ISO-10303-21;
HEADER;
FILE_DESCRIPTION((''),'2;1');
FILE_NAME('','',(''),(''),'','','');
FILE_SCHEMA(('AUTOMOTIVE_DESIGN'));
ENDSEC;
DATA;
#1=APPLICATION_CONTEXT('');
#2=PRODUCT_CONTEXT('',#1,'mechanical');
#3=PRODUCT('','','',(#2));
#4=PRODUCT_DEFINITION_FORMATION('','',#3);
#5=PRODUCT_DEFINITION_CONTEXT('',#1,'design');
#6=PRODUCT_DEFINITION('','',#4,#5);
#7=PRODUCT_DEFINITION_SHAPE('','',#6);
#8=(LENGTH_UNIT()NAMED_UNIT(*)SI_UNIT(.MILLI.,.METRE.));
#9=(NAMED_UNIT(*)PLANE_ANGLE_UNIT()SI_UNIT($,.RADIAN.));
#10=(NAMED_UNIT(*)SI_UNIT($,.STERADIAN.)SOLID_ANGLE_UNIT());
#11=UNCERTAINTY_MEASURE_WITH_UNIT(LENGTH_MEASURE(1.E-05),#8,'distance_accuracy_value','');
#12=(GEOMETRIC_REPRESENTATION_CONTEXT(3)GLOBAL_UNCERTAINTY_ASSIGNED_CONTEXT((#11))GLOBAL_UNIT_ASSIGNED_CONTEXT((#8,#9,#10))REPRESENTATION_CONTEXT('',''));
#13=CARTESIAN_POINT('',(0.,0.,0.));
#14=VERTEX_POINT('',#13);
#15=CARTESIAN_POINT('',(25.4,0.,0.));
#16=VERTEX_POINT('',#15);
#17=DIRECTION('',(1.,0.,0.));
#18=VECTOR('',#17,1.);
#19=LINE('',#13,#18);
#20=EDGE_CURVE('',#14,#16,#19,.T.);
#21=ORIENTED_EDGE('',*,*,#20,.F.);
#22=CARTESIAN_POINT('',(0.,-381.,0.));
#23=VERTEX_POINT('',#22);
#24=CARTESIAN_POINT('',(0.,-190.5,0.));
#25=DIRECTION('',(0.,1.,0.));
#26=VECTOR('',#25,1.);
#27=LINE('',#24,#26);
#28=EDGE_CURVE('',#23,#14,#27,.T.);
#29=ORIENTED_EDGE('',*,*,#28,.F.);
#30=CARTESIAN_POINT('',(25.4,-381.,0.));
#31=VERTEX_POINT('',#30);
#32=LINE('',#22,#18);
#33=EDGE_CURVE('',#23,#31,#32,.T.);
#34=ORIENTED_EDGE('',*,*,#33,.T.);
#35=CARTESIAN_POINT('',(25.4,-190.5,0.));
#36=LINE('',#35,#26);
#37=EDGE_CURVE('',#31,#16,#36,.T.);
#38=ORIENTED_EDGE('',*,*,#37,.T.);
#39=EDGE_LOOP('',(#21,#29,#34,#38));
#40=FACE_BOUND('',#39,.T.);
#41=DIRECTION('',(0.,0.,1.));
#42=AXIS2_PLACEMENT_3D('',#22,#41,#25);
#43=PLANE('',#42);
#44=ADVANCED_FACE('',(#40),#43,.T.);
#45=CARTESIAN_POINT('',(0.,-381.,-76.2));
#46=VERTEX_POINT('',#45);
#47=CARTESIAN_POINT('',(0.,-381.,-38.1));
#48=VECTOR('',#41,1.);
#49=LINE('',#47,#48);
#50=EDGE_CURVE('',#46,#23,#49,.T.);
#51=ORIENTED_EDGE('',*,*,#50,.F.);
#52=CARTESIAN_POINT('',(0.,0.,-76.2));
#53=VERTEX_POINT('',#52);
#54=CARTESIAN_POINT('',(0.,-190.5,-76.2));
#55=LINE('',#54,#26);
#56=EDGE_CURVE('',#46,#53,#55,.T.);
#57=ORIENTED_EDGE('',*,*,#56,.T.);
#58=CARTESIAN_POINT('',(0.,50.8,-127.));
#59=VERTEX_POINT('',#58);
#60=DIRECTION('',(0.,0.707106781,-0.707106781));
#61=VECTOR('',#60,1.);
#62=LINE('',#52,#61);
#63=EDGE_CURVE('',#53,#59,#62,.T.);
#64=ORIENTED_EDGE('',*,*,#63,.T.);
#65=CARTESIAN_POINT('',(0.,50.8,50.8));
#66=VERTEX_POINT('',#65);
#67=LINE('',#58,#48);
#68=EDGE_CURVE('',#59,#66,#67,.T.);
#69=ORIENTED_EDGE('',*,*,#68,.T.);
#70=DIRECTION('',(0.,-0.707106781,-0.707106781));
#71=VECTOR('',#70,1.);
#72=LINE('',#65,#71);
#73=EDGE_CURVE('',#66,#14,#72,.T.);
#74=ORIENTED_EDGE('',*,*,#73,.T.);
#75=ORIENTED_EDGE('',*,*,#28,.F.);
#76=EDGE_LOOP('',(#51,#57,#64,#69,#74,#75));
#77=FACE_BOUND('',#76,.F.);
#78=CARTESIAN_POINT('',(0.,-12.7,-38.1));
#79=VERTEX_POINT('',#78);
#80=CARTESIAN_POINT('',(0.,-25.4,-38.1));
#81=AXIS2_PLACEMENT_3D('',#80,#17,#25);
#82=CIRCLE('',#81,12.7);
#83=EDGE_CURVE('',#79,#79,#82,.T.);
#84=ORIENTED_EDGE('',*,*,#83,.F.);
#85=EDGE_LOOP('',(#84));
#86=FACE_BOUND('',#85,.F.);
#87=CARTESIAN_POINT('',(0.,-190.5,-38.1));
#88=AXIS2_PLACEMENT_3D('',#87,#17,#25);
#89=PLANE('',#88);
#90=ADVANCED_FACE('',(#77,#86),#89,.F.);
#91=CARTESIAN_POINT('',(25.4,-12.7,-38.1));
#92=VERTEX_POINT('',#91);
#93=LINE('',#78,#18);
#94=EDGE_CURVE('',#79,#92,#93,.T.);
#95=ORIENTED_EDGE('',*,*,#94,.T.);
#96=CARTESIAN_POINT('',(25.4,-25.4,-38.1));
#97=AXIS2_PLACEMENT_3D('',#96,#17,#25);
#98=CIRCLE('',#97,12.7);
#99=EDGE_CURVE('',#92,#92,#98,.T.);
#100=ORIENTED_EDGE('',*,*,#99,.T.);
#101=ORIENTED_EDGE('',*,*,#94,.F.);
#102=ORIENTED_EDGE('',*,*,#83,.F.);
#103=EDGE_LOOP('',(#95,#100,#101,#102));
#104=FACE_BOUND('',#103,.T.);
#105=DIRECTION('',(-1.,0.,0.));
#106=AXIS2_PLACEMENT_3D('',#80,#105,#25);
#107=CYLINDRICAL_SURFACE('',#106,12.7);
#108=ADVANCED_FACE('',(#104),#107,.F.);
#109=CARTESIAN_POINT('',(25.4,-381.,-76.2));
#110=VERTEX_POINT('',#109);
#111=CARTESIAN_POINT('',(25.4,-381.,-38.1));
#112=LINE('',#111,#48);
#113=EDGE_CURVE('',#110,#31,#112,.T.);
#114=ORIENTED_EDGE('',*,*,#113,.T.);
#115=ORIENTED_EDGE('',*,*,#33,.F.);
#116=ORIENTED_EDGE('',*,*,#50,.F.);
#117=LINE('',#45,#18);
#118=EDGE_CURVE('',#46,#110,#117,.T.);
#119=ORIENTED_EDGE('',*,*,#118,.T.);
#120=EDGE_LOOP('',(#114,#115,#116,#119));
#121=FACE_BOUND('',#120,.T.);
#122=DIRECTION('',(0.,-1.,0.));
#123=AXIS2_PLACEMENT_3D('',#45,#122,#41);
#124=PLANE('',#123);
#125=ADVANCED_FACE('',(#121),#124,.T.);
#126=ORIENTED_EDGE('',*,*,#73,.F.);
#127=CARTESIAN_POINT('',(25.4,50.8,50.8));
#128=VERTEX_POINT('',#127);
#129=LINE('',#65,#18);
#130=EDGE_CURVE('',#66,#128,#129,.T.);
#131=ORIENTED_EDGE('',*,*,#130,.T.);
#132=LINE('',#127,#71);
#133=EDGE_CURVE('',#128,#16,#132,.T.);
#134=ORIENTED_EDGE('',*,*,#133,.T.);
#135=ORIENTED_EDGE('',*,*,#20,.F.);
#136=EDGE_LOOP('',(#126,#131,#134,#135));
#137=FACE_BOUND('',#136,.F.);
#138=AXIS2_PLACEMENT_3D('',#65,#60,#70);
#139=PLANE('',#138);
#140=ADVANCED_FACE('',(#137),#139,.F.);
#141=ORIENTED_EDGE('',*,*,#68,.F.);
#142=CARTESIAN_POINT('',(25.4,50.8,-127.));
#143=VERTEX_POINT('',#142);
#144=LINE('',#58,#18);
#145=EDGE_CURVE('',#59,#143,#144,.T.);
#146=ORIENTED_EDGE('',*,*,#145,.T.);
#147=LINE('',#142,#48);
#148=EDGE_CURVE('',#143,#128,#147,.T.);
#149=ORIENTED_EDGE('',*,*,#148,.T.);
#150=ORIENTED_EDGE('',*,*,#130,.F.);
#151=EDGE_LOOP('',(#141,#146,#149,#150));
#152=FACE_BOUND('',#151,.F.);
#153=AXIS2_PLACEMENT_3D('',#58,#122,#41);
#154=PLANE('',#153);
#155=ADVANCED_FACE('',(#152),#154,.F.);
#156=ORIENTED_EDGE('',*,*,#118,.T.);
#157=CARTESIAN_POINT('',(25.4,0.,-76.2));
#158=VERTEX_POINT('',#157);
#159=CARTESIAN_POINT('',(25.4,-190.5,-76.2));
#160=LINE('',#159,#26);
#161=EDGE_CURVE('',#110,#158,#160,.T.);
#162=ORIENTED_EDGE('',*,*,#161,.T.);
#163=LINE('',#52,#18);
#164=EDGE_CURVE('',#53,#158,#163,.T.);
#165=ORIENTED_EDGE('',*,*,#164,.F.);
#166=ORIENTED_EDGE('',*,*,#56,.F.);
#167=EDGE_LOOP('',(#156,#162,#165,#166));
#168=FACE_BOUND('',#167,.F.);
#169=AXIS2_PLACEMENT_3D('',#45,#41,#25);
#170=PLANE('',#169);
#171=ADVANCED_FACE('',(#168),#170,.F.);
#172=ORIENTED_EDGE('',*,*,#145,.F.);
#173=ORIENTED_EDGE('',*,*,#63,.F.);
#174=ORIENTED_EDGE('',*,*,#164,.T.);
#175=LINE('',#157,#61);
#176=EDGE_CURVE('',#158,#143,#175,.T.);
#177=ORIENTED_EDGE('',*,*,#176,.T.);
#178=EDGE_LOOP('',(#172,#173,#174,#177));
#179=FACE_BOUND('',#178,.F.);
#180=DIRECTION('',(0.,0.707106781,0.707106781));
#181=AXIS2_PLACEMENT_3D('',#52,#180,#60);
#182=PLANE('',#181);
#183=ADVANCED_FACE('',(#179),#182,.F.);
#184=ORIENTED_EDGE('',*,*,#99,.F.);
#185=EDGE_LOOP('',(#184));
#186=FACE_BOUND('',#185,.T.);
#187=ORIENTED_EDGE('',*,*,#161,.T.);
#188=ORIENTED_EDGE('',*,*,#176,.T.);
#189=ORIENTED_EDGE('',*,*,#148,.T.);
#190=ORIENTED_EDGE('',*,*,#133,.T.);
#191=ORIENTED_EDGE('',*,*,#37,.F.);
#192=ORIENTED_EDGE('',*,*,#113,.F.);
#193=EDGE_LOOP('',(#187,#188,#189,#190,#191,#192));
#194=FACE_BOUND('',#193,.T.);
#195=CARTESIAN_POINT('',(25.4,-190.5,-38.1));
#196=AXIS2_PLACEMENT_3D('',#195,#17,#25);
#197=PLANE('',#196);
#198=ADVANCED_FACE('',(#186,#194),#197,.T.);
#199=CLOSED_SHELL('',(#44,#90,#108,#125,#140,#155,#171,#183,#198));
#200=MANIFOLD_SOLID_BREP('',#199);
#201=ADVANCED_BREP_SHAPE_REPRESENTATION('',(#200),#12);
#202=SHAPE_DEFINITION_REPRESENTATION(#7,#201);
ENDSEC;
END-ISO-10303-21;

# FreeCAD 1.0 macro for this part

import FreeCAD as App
import Part
import Sketcher
Q = App.Units.Quantity

doc = App.newDocument("Part")
params = doc.addObject("Spreadsheet::Sheet", "Params")
for row, (alias, value) in enumerate([
    ("sketch1_diameter", "1 in"),
    ("sketch1_width", "15 in"),
    ("sketch1_height", "3 in"),
    ("sketch1_height2", "7 in"),
    ("pad1_length", "1 in"),
], start=1):
    params.set(f"A{row}", alias)
    params.set(f"B{row}", "=" + value)
    params.setAlias(f"B{row}", alias)

body = doc.addObject("PartDesign::Body", "Body")

# Sketch on YZ plane
sketch1 = doc.addObject("Sketcher::SketchObject", "Sketch")
body.addObject(sketch1)
sketch1.AttachmentSupport = (doc.YZ_Plane, [""])
sketch1.MapMode = "FlatFace"
sketch1.addGeometry(Part.LineSegment(App.Vector(-381, 0, 0), App.Vector(-381, -76, 0)), False)
sketch1.addGeometry(Part.LineSegment(App.Vector(-381, -76, 0), App.Vector(0, -76, 0)), False)
sketch1.addGeometry(Part.LineSegment(App.Vector(0, -76, 0), App.Vector(51, -127, 0)), False)
sketch1.addGeometry(Part.LineSegment(App.Vector(51, -127, 0), App.Vector(51, 51, 0)), False)
sketch1.addGeometry(Part.LineSegment(App.Vector(51, 51, 0), App.Vector(0, 0, 0)), False)
sketch1.addGeometry(Part.LineSegment(App.Vector(0, 0, 0), App.Vector(-381, 0, 0)), False)
sketch1.addGeometry(Part.Circle(App.Vector(-25, -38, 0), App.Vector(0, 0, 1), 13), False)
sketch1.addConstraint(Sketcher.Constraint("Coincident", 0, 2, 1, 1))
sketch1.addConstraint(Sketcher.Constraint("Coincident", 1, 2, 2, 1))
sketch1.addConstraint(Sketcher.Constraint("Coincident", 2, 2, 3, 1))
sketch1.addConstraint(Sketcher.Constraint("Coincident", 3, 2, 4, 1))
sketch1.addConstraint(Sketcher.Constraint("Coincident", 4, 2, 5, 1))
sketch1.addConstraint(Sketcher.Constraint("Coincident", 5, 2, 0, 1))
sketch1.addConstraint(Sketcher.Constraint("Vertical", 0))
sketch1.addConstraint(Sketcher.Constraint("Horizontal", 1))
sketch1.addConstraint(Sketcher.Constraint("Vertical", 3))
sketch1.addConstraint(Sketcher.Constraint("Horizontal", 5))
sketch1.addConstraint(Sketcher.Constraint("Coincident", 4, 2, -1, 1))
sketch1.addConstraint(Sketcher.Constraint("PointOnObject", 1, 2, -2))
sketch1.addConstraint(Sketcher.Constraint("Perpendicular", 2, 4))
sketch1.addConstraint(Sketcher.Constraint("Equal", 2, 4))
sketch1.addConstraint(Sketcher.Constraint("Diameter", 6, Q("1 in")))
sketch1.addConstraint(Sketcher.Constraint("DistanceX", 1, 1, 1, 2, Q("15 in")))
sketch1.addConstraint(Sketcher.Constraint("DistanceY", 0, 2, 0, 1, Q("3 in")))
sketch1.addConstraint(Sketcher.Constraint("DistanceY", 3, 1, 3, 2, Q("7 in")))
sketch1.addConstraint(Sketcher.Constraint("DistanceX", 6, 3, -1, 1, Q("1 in")))
sketch1.addConstraint(Sketcher.Constraint("DistanceY", 6, 3, -1, 1, Q("1.5 in")))
sketch1.setExpression("Constraints[14]", "Params.sketch1_diameter")
sketch1.setExpression("Constraints[15]", "Params.sketch1_width")
sketch1.setExpression("Constraints[16]", "Params.sketch1_height")
sketch1.setExpression("Constraints[17]", "Params.sketch1_height2")
pad1 = doc.addObject("PartDesign::Pad", "Pad")
body.addObject(pad1)
pad1.Profile = sketch1
pad1.setExpression("Length", "Params.pad1_length")

doc.recompute()
